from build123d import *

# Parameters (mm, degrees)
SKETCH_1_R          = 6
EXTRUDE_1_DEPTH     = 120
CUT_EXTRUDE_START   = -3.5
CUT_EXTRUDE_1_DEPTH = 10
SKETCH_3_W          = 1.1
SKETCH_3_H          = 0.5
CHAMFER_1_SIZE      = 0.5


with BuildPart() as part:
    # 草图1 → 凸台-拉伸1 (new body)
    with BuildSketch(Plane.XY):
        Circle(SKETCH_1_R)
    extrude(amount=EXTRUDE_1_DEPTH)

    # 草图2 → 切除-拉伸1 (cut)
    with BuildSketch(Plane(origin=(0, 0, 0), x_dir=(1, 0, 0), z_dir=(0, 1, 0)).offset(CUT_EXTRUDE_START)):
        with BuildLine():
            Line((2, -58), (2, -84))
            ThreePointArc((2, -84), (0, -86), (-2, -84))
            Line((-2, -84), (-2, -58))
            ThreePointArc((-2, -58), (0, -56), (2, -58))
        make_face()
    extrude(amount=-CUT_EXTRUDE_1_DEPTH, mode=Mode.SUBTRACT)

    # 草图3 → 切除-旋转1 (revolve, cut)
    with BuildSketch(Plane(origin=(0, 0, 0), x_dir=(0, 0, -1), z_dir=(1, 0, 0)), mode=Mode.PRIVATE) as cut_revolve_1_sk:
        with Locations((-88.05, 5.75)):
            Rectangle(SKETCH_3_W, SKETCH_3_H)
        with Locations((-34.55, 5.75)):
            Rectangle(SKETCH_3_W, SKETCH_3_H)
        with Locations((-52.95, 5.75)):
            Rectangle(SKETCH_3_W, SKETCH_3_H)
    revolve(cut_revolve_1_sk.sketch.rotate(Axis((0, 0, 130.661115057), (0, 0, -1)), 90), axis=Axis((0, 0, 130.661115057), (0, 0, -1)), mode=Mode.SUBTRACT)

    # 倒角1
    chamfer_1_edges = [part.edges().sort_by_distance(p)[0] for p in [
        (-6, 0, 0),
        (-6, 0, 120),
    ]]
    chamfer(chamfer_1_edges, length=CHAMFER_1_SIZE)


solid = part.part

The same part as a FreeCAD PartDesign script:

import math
import FreeCAD as App
import Part
import Sketcher
from FreeCAD import Vector


def edges_at(feature, points):
    """Names of the edges that pass closest to the given points."""
    edges = feature.Shape.Edges
    near = lambda p: min(range(len(edges)), key=lambda i: edges[i].distToShape(Part.Vertex(*p))[0])
    return sorted({f"Edge{near(p) + 1}" for p in points})


def add_polygon(sketch, points):
    """Adds a closed chain of lines whose ends are joined by coincident constraints."""
    first, n = sketch.GeometryCount, len(points)
    for a, b in zip(points, points[1:] + points[:1]):
        sketch.addGeometry(Part.LineSegment(App.Vector(*a, 0), App.Vector(*b, 0)), False)
    for i in range(n):
        sketch.addConstraint(Sketcher.Constraint("Coincident", first + i, 2, first + (i + 1) % n, 1))

doc = App.newDocument("Part")
body = doc.addObject("PartDesign::Body", "Body")

# Sketch on XY plane
sketch1 = body.newObject("Sketcher::SketchObject", "Sketch")
sketch1.AttachmentSupport = (doc.getObject("XY_Plane"), [""])
sketch1.MapMode = "FlatFace"
sketch1.addGeometry(Part.Circle(Vector(0, 0, 0), Vector(0, 0, 1), 6), False)
sketch1.addConstraint([
    Sketcher.Constraint("Coincident", 0, 3, -1, 1),
    Sketcher.Constraint("Diameter", 0, 12.0),
])
pad1 = body.newObject("PartDesign::Pad", "Pad")
pad1.Profile = sketch1
pad1.Length = 120

# Sketch on XZ plane
sketch2 = body.newObject("Sketcher::SketchObject", "Sketch001")
sketch2.AttachmentSupport = (doc.getObject("XZ_Plane"), [""])
sketch2.MapMode = "FlatFace"
sketch2.AttachmentOffset = App.Placement(Vector(0, 0, 3.5), App.Rotation())
sketch2.addGeometry([
    Part.LineSegment(Vector(2, 84, 0), Vector(2, 58, 0)),
    Part.ArcOfCircle(Part.Circle(Vector(0, 58, 0), Vector(0, 0, 1), 2), math.radians(180), math.radians(360)),
    Part.LineSegment(Vector(-2, 58, 0), Vector(-2, 84, 0)),
    Part.ArcOfCircle(Part.Circle(Vector(0, 84, 0), Vector(0, 0, 1), 2), math.radians(0), math.radians(180)),
], False)
sketch2.addConstraint([
    Sketcher.Constraint("Tangent", 0, 2, 1, 2),
    Sketcher.Constraint("Tangent", 1, 1, 2, 1),
    Sketcher.Constraint("Tangent", 2, 2, 3, 2),
    Sketcher.Constraint("Tangent", 3, 1, 0, 1),
    Sketcher.Constraint("Vertical", 0),
    Sketcher.Constraint("Vertical", 2),
    Sketcher.Constraint("PointOnObject", 1, 3, -2),
    Sketcher.Constraint("Radius", 1, 2.0),
    Sketcher.Constraint("DistanceY", 0, 2, 0, 1, 26.0),
    Sketcher.Constraint("DistanceY", -1, 1, 1, 3, 58.0),
])
pocket1 = body.newObject("PartDesign::Pocket", "Pocket")
pocket1.Profile = sketch2
pocket1.Length = 10
pocket1.Reversed = True

# Sketch on YZ plane
sketch3 = body.newObject("Sketcher::SketchObject", "Sketch002")
sketch3.AttachmentSupport = (doc.getObject("YZ_Plane"), [""])
sketch3.MapMode = "FlatFace"
add_polygon(sketch3, [(6, 88.6), (5.5, 88.6), (5.5, 87.5), (6, 87.5)])  # lines 0-3
add_polygon(sketch3, [(6, 35.1), (5.5, 35.1), (5.5, 34), (6, 34)])  # lines 4-7
add_polygon(sketch3, [(6, 53.5), (5.5, 53.5), (5.5, 52.4), (6, 52.4)])  # lines 8-11
sketch3.addConstraint([
    Sketcher.Constraint("Horizontal", 0),
    Sketcher.Constraint("Vertical", 1),
    Sketcher.Constraint("Horizontal", 2),
    Sketcher.Constraint("Vertical", 3),
    Sketcher.Constraint("Horizontal", 4),
    Sketcher.Constraint("Vertical", 5),
    Sketcher.Constraint("Horizontal", 6),
    Sketcher.Constraint("Vertical", 7),
    Sketcher.Constraint("Horizontal", 8),
    Sketcher.Constraint("Vertical", 9),
    Sketcher.Constraint("Horizontal", 10),
    Sketcher.Constraint("Vertical", 11),
    Sketcher.Constraint("Vertical", 1, 2, 4, 2),
    Sketcher.Constraint("Vertical", 3, 2, 6, 2),
    Sketcher.Constraint("Vertical", 5, 2, 8, 2),
    Sketcher.Constraint("Vertical", 7, 2, 10, 2),
    Sketcher.Constraint("Equal", 3, 5),
    Sketcher.Constraint("Equal", 7, 9),
    Sketcher.Constraint("DistanceX", 0, 2, 0, 1, 0.5),
    Sketcher.Constraint("DistanceY", 1, 2, 1, 1, 1.1),
    Sketcher.Constraint("DistanceX", -1, 1, 2, 2, 6.0),
    Sketcher.Constraint("DistanceY", -1, 1, 5, 2, 34.0),
    Sketcher.Constraint("DistanceY", 8, 2, 1, 2, 34.0),
    Sketcher.Constraint("DistanceY", -1, 1, 0, 2, 88.6),
])
groove = body.newObject("PartDesign::Groove", "Groove")
groove.Profile = sketch3
groove.ReferenceAxis = (sketch3, ["V_Axis"])
groove.Angle = 360
doc.recompute()

chamfer = body.newObject("PartDesign::Chamfer", "Chamfer")
chamfer.Base = (groove, edges_at(groove, [(-6, 0, 0), (-6, 0, 120)]))
chamfer.Size = 0.5

doc.recompute()
